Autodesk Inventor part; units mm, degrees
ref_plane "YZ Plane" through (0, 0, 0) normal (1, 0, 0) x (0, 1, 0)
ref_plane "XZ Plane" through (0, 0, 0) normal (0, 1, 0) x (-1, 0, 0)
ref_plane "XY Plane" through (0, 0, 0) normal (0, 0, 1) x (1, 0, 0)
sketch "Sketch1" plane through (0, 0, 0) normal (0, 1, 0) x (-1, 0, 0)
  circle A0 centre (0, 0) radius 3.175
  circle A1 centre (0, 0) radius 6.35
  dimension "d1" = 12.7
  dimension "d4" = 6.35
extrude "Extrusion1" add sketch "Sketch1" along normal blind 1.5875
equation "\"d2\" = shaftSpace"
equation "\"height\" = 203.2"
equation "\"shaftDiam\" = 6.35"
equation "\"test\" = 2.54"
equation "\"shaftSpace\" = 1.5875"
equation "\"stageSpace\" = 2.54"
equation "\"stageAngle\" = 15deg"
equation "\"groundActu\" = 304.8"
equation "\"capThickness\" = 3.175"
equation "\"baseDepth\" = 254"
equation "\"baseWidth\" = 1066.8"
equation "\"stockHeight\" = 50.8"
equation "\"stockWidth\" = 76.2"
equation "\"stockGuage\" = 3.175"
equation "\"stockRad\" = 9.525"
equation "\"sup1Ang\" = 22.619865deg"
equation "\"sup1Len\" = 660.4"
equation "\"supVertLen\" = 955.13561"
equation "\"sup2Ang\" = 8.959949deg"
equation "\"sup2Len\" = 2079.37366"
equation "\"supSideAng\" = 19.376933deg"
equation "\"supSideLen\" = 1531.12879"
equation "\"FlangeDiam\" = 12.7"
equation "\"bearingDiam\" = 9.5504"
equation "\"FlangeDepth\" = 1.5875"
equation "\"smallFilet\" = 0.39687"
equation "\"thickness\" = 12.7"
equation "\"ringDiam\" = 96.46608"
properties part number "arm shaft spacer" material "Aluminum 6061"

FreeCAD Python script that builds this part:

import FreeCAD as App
import Part
import Sketcher
from FreeCAD import Vector
Q = App.Units.Quantity

doc = App.newDocument("Part")
params = doc.addObject("Spreadsheet::Sheet", "Params")
for row, (alias, value) in enumerate([
    ("sketch1_diameter", "0.5 in"),
    ("sketch1_diameter2", "0.25 in"),
    ("pad1_length", "0.0625 in"),
], start=1):
    params.set(f"A{row}", alias)
    params.set(f"B{row}", "=" + value)
    params.setAlias(f"B{row}", alias)

body = doc.addObject("PartDesign::Body", "Body")

# Sketch on XZ plane
sketch1 = body.newObject("Sketcher::SketchObject", "Sketch")
sketch1.AttachmentSupport = (doc.getObject("XZ_Plane"), [""])
sketch1.MapMode = "FlatFace"
sketch1.addGeometry([
    Part.Circle(Vector(0, 0, 0), Vector(0, 0, 1), 6.3),
    Part.Circle(Vector(0, 0, 0), Vector(0, 0, 1), 3.2),
], False)
sketch1.addConstraint([
    Sketcher.Constraint("Coincident", 0, 3, -1, 1),
    Sketcher.Constraint("Coincident", 1, 3, -1, 1),
    Sketcher.Constraint("Diameter", 0, Q("0.5 in")),
    Sketcher.Constraint("Diameter", 1, Q("0.25 in")),
])
sketch1.setExpression("Constraints[2]", "Params.sketch1_diameter")
sketch1.setExpression("Constraints[3]", "Params.sketch1_diameter2")
pad1 = body.newObject("PartDesign::Pad", "Pad")
pad1.Profile = sketch1
pad1.setExpression("Length", "Params.pad1_length")
pad1.Reversed = True

doc.recompute()
